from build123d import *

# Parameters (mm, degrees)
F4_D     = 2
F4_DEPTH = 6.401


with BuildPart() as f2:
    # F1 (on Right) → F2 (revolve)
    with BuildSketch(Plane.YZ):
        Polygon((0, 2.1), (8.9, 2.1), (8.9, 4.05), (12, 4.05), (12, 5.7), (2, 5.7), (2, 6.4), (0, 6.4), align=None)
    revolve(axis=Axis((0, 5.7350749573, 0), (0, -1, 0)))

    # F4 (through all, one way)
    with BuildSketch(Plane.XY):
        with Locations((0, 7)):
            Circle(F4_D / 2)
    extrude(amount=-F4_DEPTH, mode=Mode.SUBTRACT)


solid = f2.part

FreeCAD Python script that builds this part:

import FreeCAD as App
import Part
import Sketcher

doc = App.newDocument("Part")
body = doc.addObject("PartDesign::Body", "Body")

# Sketch on YZ plane
sketch1 = body.newObject("Sketcher::SketchObject", "Sketch")
sketch1.AttachmentSupport = (doc.getObject("YZ_Plane"), [""])
sketch1.MapMode = "FlatFace"
sketch1.addGeometry([
    Part.LineSegment(App.Vector(0, 2.1, 0), App.Vector(8.9, 2.1, 0)),  # 0
    Part.LineSegment(App.Vector(8.9, 2.1, 0), App.Vector(8.9, 4, 0)),  # 1
    Part.LineSegment(App.Vector(8.9, 4, 0), App.Vector(12, 4, 0)),  # 2
    Part.LineSegment(App.Vector(12, 4, 0), App.Vector(12, 5.7, 0)),  # 3
    Part.LineSegment(App.Vector(12, 5.7, 0), App.Vector(2, 5.7, 0)),  # 4
    Part.LineSegment(App.Vector(2, 5.7, 0), App.Vector(2, 6.4, 0)),  # 5
    Part.LineSegment(App.Vector(2, 6.4, 0), App.Vector(0, 6.4, 0)),  # 6
    Part.LineSegment(App.Vector(0, 6.4, 0), App.Vector(0, 2.1, 0)),  # 7
], False)
sketch1.addConstraint([
    Sketcher.Constraint("Coincident", 0, 2, 1, 1),
    Sketcher.Constraint("Coincident", 1, 2, 2, 1),
    Sketcher.Constraint("Coincident", 2, 2, 3, 1),
    Sketcher.Constraint("Coincident", 3, 2, 4, 1),
    Sketcher.Constraint("Coincident", 4, 2, 5, 1),
    Sketcher.Constraint("Coincident", 5, 2, 6, 1),
    Sketcher.Constraint("Coincident", 6, 2, 7, 1),
    Sketcher.Constraint("Coincident", 7, 2, 0, 1),
    Sketcher.Constraint("Horizontal", 0),
    Sketcher.Constraint("Vertical", 1),
    Sketcher.Constraint("Horizontal", 2),
    Sketcher.Constraint("Vertical", 3),
    Sketcher.Constraint("Horizontal", 4),
    Sketcher.Constraint("Vertical", 5),
    Sketcher.Constraint("Horizontal", 6),
    Sketcher.Constraint("Vertical", 7),
    Sketcher.Constraint("PointOnObject", 6, 2, -2),
    Sketcher.Constraint("DistanceX", 4, 2, 4, 1, 10.0),
    Sketcher.Constraint("DistanceX", 6, 2, 6, 1, 2.0),
    Sketcher.Constraint("DistanceX", 0, 1, 0, 2, 8.9),
    Sketcher.Constraint("DistanceY", 5, 1, 5, 2, 0.7),
    Sketcher.Constraint("DistanceY", 7, 2, 7, 1, 4.3),
    Sketcher.Constraint("DistanceY", 1, 1, 1, 2, 1.95),
    Sketcher.Constraint("DistanceY", -1, 1, 0, 2, 2.1),
])
revolution = body.newObject("PartDesign::Revolution", "Revolution")
revolution.Profile = sketch1
revolution.ReferenceAxis = (sketch1, ["H_Axis"])
revolution.Angle = 360

# Sketch on XY plane
sketch2 = body.newObject("Sketcher::SketchObject", "Sketch001")
sketch2.AttachmentSupport = (doc.getObject("XY_Plane"), [""])
sketch2.MapMode = "FlatFace"
sketch2.addGeometry(Part.Circle(App.Vector(0, 7, 0), App.Vector(0, 0, 1), 1), False)
sketch2.addConstraint([
    Sketcher.Constraint("PointOnObject", 0, 3, -2),
    Sketcher.Constraint("Diameter", 0, 2.0),
    Sketcher.Constraint("DistanceY", -1, 1, 0, 3, 7.0),
])
pocket1 = body.newObject("PartDesign::Pocket", "Pocket")
pocket1.Profile = sketch2
pocket1.Type = "ThroughAll"

doc.recompute()
